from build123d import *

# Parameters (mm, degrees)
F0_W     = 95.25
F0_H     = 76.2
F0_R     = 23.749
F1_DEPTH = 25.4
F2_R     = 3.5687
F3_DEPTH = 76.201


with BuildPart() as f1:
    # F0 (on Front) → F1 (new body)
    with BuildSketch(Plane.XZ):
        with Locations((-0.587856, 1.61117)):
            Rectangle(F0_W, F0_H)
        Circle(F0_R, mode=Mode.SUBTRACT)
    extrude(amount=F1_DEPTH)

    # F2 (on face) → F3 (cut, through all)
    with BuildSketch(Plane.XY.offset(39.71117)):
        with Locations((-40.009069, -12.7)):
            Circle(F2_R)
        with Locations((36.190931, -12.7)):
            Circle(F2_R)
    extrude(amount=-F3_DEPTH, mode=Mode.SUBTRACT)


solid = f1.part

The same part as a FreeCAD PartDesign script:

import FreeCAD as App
import Part
import Sketcher

V = App.Vector
Q = App.Units.Quantity


def add_polygon(sketch, points):
    """Adds a closed chain of lines whose ends are joined by coincident constraints."""
    first, n = sketch.GeometryCount, len(points)
    for a, b in zip(points, points[1:] + points[:1]):
        sketch.addGeometry(Part.LineSegment(App.Vector(*a, 0), App.Vector(*b, 0)), False)
    for i in range(n):
        sketch.addConstraint(Sketcher.Constraint("Coincident", first + i, 2, first + (i + 1) % n, 1))

doc = App.newDocument("Part")
body = doc.addObject("PartDesign::Body", "Body")

# Sketch on XZ plane
sketch1 = body.newObject("Sketcher::SketchObject", "Sketch")
sketch1.AttachmentSupport = (doc.getObject("XZ_Plane"), [""])
sketch1.MapMode = "FlatFace"
add_polygon(sketch1, [(-48, 40), (-48, -36), (47, -36), (47, 40)])  # lines 0-3
sketch1.addGeometry(Part.Circle(V(0, 0, 0), V(0, 0, 1), 24), False)  # 4
sketch1.addConstraint([
    Sketcher.Constraint("Vertical", 0),
    Sketcher.Constraint("Horizontal", 1),
    Sketcher.Constraint("Vertical", 2),
    Sketcher.Constraint("Horizontal", 3),
    Sketcher.Constraint("Coincident", 4, 3, -1, 1),
    Sketcher.Constraint("Diameter", 4, Q("1.87 in")),
    Sketcher.Constraint("DistanceY", 0, 2, 0, 1, Q("3 in")),
    Sketcher.Constraint("DistanceX", 1, 1, 1, 2, Q("3.75 in")),
    Sketcher.Constraint("DistanceY", 0, 2, -1, 1, 36.48883),
    Sketcher.Constraint("DistanceX", 0, 2, -1, 1, 48.212856),
])
pad1 = body.newObject("PartDesign::Pad", "Pad")
pad1.Profile = sketch1
pad1.Length = Q("1 in")

# Sketch on XY plane
sketch2 = body.newObject("Sketcher::SketchObject", "Sketch001")
sketch2.AttachmentSupport = (doc.getObject("XY_Plane"), [""])
sketch2.MapMode = "FlatFace"
sketch2.AttachmentOffset = App.Placement(V(0, 0, 39.71117), App.Rotation())
sketch2.addGeometry([
    Part.Circle(V(-40, -12.7, 0), V(0, 0, 1), 3.6),
    Part.Circle(V(36.2, -12.7, 0), V(0, 0, 1), 3.6),
], False)
sketch2.addConstraint([
    Sketcher.Constraint("Equal", 0, 1),
    Sketcher.Constraint("Horizontal", 0, 3, 1, 3),
    Sketcher.Constraint("Diameter", 0, Q("0.281 in")),
    Sketcher.Constraint("DistanceX", 0, 3, 1, 3, Q("3 in")),
    Sketcher.Constraint("DistanceY", 0, 3, -1, 1, Q("0.5 in")),
    Sketcher.Constraint("DistanceX", 0, 3, -1, 1, 40.009069),
])
pocket1 = body.newObject("PartDesign::Pocket", "Pocket")
pocket1.Profile = sketch2
pocket1.Type = "ThroughAll"

doc.recompute()
